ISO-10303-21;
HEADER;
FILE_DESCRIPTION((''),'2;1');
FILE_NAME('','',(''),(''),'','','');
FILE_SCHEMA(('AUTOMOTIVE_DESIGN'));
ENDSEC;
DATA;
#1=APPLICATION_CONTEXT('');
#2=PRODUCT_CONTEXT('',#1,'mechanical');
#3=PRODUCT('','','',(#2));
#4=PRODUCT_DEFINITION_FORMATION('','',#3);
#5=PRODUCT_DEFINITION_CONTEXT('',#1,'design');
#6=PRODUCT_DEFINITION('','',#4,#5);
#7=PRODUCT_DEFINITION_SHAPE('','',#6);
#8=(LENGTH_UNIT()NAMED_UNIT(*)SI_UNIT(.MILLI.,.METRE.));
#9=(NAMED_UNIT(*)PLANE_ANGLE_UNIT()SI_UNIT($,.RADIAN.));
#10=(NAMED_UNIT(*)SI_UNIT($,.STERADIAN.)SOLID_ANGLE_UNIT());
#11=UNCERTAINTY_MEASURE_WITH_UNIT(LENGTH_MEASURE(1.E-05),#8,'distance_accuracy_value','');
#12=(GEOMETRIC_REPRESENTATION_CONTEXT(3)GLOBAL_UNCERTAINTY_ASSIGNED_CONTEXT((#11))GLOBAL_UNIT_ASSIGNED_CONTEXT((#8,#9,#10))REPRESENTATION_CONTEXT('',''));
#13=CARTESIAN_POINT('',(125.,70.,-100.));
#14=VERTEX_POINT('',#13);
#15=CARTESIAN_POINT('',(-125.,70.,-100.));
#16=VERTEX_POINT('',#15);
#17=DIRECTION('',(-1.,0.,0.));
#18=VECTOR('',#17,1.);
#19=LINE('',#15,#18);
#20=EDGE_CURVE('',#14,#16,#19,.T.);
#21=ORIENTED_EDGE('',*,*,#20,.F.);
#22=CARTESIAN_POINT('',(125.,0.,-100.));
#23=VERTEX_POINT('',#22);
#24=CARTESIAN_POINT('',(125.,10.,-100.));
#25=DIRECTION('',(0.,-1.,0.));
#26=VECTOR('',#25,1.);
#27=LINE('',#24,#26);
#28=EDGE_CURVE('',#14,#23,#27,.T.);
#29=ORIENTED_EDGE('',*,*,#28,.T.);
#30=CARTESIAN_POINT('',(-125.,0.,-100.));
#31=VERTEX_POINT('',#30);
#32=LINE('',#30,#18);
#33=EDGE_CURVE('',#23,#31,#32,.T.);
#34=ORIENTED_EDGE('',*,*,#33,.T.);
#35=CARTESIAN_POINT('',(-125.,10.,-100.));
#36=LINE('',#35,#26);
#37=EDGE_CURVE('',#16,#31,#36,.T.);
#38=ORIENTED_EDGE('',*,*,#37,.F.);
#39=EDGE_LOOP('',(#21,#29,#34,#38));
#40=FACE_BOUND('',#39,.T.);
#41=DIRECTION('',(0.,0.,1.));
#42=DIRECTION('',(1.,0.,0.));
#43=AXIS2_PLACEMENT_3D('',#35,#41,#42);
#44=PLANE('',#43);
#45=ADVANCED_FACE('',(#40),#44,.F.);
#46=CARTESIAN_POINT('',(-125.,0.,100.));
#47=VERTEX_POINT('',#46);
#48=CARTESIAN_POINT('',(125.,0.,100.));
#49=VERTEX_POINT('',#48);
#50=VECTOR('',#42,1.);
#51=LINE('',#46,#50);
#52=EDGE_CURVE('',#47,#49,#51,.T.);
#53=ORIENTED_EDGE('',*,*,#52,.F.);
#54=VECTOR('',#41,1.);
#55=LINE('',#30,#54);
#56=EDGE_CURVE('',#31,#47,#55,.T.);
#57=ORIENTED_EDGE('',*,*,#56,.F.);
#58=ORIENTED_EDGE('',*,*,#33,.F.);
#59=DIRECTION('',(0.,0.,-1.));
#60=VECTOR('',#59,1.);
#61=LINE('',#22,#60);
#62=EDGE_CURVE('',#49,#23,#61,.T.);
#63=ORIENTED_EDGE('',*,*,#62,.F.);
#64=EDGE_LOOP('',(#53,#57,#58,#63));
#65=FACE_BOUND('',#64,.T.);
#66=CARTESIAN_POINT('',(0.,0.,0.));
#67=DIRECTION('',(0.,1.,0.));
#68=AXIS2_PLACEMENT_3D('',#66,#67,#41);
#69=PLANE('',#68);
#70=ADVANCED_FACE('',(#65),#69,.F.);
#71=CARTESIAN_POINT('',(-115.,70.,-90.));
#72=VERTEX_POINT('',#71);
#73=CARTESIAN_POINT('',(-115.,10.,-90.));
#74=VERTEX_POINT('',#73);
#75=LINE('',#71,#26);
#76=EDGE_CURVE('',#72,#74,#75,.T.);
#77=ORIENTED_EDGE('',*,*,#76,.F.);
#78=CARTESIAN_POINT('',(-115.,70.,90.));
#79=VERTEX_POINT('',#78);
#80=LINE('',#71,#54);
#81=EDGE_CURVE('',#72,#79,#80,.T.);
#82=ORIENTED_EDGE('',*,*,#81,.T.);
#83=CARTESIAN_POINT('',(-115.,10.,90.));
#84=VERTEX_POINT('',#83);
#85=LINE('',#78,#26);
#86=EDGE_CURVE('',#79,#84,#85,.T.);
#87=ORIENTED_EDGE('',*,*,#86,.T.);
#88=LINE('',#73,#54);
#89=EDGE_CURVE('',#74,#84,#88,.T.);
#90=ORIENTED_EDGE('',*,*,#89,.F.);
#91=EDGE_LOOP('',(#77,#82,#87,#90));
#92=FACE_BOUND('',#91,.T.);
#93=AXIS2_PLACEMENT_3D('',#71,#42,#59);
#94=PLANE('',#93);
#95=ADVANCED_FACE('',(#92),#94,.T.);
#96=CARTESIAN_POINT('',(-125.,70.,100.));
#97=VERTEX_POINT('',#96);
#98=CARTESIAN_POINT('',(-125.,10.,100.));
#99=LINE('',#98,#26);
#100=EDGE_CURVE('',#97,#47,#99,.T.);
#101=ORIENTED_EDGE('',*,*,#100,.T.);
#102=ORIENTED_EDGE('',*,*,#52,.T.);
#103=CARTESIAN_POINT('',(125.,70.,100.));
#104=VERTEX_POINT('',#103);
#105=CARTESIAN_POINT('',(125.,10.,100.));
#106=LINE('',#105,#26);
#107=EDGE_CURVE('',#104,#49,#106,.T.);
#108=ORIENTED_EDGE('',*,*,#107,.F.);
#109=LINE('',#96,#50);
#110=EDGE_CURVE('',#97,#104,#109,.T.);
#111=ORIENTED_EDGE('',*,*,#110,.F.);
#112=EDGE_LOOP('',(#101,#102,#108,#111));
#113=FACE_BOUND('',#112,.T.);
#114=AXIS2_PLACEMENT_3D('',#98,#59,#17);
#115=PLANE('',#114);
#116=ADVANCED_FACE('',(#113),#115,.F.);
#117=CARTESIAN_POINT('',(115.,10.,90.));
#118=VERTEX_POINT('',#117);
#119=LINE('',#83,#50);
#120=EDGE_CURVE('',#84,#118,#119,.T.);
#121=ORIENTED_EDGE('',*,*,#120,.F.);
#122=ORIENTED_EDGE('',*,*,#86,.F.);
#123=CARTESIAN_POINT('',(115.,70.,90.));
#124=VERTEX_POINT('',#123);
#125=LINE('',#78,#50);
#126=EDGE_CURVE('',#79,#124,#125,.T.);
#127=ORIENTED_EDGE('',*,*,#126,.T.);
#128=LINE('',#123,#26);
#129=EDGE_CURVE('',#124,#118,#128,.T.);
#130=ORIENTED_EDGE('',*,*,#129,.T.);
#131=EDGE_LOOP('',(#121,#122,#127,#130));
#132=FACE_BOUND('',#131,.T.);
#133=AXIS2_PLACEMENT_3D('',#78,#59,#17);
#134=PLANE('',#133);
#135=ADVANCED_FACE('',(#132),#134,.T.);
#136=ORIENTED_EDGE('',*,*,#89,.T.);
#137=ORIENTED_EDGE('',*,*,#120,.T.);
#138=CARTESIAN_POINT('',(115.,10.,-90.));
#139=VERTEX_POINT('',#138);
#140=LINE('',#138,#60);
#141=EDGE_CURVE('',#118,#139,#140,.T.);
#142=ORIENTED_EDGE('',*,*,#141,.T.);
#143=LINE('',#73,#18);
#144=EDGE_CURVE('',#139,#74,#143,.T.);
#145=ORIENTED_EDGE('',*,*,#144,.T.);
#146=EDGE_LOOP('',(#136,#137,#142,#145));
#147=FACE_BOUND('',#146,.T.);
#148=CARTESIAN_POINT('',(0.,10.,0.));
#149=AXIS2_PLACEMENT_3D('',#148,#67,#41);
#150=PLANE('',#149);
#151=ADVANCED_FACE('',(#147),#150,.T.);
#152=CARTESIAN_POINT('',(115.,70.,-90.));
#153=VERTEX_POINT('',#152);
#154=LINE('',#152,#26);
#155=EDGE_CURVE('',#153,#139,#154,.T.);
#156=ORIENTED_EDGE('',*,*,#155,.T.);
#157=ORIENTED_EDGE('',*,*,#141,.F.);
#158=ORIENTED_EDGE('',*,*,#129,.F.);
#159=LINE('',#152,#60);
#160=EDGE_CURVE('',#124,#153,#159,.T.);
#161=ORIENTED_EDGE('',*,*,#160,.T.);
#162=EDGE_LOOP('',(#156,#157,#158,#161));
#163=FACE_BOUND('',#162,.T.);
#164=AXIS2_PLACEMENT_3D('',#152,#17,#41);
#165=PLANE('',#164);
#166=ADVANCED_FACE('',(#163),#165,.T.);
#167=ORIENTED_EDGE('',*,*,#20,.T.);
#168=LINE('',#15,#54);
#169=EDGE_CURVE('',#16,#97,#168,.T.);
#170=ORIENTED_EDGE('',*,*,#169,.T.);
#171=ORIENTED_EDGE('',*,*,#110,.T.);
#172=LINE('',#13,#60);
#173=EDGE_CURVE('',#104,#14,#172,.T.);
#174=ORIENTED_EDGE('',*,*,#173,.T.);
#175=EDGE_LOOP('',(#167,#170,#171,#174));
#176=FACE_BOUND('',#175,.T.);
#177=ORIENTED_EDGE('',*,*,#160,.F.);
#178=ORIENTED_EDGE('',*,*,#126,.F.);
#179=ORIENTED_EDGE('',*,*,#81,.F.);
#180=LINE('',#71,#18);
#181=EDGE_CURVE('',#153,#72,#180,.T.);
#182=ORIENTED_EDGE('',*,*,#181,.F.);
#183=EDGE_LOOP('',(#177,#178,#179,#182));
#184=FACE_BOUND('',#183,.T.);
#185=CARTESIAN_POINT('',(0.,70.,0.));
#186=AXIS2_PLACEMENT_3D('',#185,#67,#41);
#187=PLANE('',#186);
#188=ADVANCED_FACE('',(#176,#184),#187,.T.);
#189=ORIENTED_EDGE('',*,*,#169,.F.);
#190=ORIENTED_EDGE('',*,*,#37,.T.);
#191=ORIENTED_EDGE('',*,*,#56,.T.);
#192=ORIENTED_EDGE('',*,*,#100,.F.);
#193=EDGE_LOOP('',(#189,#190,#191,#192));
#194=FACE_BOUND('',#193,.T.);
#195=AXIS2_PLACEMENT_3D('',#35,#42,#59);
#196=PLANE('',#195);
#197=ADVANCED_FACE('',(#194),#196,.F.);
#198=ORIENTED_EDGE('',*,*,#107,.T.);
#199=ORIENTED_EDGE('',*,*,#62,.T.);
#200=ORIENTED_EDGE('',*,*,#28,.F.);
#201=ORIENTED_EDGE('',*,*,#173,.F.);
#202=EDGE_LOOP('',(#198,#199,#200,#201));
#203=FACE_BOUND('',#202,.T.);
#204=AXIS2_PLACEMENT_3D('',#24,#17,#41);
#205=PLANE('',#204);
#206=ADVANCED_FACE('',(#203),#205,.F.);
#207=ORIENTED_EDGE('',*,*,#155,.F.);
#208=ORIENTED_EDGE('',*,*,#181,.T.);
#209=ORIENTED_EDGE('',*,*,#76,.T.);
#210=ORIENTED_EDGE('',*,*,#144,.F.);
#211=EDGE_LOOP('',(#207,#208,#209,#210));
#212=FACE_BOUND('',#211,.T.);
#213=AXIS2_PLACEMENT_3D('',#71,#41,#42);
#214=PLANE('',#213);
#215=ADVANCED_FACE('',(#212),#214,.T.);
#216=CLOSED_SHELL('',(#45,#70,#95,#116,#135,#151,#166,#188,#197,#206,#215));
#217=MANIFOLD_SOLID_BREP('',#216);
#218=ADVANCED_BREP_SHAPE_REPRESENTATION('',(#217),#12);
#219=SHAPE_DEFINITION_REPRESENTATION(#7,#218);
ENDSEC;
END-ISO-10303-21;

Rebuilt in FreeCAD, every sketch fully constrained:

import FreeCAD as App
import Part
import Sketcher
Q = App.Units.Quantity


def add_polygon(sketch, points):
    """Adds a closed chain of lines whose ends are joined by coincident constraints."""
    first, n = sketch.GeometryCount, len(points)
    for a, b in zip(points, points[1:] + points[:1]):
        sketch.addGeometry(Part.LineSegment(App.Vector(*a, 0), App.Vector(*b, 0)), False)
    for i in range(n):
        sketch.addConstraint(Sketcher.Constraint("Coincident", first + i, 2, first + (i + 1) % n, 1))

doc = App.newDocument("Part")
body = doc.addObject("PartDesign::Body", "Body")

sketch1 = doc.addObject("Sketcher::SketchObject", "Sketch")
body.addObject(sketch1)
sketch1.AttachmentSupport = (doc.XZ_Plane, [""])
sketch1.MapMode = "FlatFace"
add_polygon(sketch1, [(-125, -100), (-125, 100), (125, 100), (125, -100)])
sketch1.addConstraint([
    Sketcher.Constraint("Vertical", 0),
    Sketcher.Constraint("Horizontal", 1),
    Sketcher.Constraint("Vertical", 2),
    Sketcher.Constraint("Horizontal", 3),
    Sketcher.Constraint("Symmetric", 0, 2, 2, 2, -1, 1),
    Sketcher.Constraint("DistanceX", 1, 1, 1, 2, Q("250 mm")),
    Sketcher.Constraint("DistanceY", 0, 1, 0, 2, Q("200 mm")),
])
pad1 = doc.addObject("PartDesign::Pad", "Pad")
body.addObject(pad1)
pad1.Profile = sketch1
pad1.Length = 10
pad1.Reversed = True

sketch2 = doc.addObject("Sketcher::SketchObject", "Sketch001")
body.addObject(sketch2)
sketch2.AttachmentSupport = (doc.XZ_Plane, [""])
sketch2.MapMode = "FlatFace"
sketch2.AttachmentOffset = App.Placement(App.Vector(0, 0, -10), App.Rotation())
add_polygon(sketch2, [(-125, -100), (-125, 100), (125, 100), (125, -100)])
add_polygon(sketch2, [(115, 90), (-115, 90), (-115, -90), (115, -90)])
sketch2.addConstraint([
    Sketcher.Constraint("Vertical", 0),
    Sketcher.Constraint("Horizontal", 1),
    Sketcher.Constraint("Vertical", 2),
    Sketcher.Constraint("Horizontal", 3),
    Sketcher.Constraint("Horizontal", 4),
    Sketcher.Constraint("Vertical", 5),
    Sketcher.Constraint("Horizontal", 6),
    Sketcher.Constraint("Vertical", 7),
    Sketcher.Constraint("Symmetric", 0, 2, 2, 2, -1, 1),
    Sketcher.Constraint("Symmetric", 4, 2, 6, 2, -1, 1),
    Sketcher.Constraint("DistanceX", 1, 1, 1, 2, Q("250 mm")),
    Sketcher.Constraint("DistanceX", 4, 2, 4, 1, Q("230 mm")),
    Sketcher.Constraint("DistanceY", 0, 1, 0, 2, Q("200 mm")),
    Sketcher.Constraint("DistanceY", 5, 2, 5, 1, Q("180 mm")),
])
pad2 = doc.addObject("PartDesign::Pad", "Pad001")
body.addObject(pad2)
pad2.Profile = sketch2
pad2.Length = 60
pad2.Reversed = True

doc.recompute()
